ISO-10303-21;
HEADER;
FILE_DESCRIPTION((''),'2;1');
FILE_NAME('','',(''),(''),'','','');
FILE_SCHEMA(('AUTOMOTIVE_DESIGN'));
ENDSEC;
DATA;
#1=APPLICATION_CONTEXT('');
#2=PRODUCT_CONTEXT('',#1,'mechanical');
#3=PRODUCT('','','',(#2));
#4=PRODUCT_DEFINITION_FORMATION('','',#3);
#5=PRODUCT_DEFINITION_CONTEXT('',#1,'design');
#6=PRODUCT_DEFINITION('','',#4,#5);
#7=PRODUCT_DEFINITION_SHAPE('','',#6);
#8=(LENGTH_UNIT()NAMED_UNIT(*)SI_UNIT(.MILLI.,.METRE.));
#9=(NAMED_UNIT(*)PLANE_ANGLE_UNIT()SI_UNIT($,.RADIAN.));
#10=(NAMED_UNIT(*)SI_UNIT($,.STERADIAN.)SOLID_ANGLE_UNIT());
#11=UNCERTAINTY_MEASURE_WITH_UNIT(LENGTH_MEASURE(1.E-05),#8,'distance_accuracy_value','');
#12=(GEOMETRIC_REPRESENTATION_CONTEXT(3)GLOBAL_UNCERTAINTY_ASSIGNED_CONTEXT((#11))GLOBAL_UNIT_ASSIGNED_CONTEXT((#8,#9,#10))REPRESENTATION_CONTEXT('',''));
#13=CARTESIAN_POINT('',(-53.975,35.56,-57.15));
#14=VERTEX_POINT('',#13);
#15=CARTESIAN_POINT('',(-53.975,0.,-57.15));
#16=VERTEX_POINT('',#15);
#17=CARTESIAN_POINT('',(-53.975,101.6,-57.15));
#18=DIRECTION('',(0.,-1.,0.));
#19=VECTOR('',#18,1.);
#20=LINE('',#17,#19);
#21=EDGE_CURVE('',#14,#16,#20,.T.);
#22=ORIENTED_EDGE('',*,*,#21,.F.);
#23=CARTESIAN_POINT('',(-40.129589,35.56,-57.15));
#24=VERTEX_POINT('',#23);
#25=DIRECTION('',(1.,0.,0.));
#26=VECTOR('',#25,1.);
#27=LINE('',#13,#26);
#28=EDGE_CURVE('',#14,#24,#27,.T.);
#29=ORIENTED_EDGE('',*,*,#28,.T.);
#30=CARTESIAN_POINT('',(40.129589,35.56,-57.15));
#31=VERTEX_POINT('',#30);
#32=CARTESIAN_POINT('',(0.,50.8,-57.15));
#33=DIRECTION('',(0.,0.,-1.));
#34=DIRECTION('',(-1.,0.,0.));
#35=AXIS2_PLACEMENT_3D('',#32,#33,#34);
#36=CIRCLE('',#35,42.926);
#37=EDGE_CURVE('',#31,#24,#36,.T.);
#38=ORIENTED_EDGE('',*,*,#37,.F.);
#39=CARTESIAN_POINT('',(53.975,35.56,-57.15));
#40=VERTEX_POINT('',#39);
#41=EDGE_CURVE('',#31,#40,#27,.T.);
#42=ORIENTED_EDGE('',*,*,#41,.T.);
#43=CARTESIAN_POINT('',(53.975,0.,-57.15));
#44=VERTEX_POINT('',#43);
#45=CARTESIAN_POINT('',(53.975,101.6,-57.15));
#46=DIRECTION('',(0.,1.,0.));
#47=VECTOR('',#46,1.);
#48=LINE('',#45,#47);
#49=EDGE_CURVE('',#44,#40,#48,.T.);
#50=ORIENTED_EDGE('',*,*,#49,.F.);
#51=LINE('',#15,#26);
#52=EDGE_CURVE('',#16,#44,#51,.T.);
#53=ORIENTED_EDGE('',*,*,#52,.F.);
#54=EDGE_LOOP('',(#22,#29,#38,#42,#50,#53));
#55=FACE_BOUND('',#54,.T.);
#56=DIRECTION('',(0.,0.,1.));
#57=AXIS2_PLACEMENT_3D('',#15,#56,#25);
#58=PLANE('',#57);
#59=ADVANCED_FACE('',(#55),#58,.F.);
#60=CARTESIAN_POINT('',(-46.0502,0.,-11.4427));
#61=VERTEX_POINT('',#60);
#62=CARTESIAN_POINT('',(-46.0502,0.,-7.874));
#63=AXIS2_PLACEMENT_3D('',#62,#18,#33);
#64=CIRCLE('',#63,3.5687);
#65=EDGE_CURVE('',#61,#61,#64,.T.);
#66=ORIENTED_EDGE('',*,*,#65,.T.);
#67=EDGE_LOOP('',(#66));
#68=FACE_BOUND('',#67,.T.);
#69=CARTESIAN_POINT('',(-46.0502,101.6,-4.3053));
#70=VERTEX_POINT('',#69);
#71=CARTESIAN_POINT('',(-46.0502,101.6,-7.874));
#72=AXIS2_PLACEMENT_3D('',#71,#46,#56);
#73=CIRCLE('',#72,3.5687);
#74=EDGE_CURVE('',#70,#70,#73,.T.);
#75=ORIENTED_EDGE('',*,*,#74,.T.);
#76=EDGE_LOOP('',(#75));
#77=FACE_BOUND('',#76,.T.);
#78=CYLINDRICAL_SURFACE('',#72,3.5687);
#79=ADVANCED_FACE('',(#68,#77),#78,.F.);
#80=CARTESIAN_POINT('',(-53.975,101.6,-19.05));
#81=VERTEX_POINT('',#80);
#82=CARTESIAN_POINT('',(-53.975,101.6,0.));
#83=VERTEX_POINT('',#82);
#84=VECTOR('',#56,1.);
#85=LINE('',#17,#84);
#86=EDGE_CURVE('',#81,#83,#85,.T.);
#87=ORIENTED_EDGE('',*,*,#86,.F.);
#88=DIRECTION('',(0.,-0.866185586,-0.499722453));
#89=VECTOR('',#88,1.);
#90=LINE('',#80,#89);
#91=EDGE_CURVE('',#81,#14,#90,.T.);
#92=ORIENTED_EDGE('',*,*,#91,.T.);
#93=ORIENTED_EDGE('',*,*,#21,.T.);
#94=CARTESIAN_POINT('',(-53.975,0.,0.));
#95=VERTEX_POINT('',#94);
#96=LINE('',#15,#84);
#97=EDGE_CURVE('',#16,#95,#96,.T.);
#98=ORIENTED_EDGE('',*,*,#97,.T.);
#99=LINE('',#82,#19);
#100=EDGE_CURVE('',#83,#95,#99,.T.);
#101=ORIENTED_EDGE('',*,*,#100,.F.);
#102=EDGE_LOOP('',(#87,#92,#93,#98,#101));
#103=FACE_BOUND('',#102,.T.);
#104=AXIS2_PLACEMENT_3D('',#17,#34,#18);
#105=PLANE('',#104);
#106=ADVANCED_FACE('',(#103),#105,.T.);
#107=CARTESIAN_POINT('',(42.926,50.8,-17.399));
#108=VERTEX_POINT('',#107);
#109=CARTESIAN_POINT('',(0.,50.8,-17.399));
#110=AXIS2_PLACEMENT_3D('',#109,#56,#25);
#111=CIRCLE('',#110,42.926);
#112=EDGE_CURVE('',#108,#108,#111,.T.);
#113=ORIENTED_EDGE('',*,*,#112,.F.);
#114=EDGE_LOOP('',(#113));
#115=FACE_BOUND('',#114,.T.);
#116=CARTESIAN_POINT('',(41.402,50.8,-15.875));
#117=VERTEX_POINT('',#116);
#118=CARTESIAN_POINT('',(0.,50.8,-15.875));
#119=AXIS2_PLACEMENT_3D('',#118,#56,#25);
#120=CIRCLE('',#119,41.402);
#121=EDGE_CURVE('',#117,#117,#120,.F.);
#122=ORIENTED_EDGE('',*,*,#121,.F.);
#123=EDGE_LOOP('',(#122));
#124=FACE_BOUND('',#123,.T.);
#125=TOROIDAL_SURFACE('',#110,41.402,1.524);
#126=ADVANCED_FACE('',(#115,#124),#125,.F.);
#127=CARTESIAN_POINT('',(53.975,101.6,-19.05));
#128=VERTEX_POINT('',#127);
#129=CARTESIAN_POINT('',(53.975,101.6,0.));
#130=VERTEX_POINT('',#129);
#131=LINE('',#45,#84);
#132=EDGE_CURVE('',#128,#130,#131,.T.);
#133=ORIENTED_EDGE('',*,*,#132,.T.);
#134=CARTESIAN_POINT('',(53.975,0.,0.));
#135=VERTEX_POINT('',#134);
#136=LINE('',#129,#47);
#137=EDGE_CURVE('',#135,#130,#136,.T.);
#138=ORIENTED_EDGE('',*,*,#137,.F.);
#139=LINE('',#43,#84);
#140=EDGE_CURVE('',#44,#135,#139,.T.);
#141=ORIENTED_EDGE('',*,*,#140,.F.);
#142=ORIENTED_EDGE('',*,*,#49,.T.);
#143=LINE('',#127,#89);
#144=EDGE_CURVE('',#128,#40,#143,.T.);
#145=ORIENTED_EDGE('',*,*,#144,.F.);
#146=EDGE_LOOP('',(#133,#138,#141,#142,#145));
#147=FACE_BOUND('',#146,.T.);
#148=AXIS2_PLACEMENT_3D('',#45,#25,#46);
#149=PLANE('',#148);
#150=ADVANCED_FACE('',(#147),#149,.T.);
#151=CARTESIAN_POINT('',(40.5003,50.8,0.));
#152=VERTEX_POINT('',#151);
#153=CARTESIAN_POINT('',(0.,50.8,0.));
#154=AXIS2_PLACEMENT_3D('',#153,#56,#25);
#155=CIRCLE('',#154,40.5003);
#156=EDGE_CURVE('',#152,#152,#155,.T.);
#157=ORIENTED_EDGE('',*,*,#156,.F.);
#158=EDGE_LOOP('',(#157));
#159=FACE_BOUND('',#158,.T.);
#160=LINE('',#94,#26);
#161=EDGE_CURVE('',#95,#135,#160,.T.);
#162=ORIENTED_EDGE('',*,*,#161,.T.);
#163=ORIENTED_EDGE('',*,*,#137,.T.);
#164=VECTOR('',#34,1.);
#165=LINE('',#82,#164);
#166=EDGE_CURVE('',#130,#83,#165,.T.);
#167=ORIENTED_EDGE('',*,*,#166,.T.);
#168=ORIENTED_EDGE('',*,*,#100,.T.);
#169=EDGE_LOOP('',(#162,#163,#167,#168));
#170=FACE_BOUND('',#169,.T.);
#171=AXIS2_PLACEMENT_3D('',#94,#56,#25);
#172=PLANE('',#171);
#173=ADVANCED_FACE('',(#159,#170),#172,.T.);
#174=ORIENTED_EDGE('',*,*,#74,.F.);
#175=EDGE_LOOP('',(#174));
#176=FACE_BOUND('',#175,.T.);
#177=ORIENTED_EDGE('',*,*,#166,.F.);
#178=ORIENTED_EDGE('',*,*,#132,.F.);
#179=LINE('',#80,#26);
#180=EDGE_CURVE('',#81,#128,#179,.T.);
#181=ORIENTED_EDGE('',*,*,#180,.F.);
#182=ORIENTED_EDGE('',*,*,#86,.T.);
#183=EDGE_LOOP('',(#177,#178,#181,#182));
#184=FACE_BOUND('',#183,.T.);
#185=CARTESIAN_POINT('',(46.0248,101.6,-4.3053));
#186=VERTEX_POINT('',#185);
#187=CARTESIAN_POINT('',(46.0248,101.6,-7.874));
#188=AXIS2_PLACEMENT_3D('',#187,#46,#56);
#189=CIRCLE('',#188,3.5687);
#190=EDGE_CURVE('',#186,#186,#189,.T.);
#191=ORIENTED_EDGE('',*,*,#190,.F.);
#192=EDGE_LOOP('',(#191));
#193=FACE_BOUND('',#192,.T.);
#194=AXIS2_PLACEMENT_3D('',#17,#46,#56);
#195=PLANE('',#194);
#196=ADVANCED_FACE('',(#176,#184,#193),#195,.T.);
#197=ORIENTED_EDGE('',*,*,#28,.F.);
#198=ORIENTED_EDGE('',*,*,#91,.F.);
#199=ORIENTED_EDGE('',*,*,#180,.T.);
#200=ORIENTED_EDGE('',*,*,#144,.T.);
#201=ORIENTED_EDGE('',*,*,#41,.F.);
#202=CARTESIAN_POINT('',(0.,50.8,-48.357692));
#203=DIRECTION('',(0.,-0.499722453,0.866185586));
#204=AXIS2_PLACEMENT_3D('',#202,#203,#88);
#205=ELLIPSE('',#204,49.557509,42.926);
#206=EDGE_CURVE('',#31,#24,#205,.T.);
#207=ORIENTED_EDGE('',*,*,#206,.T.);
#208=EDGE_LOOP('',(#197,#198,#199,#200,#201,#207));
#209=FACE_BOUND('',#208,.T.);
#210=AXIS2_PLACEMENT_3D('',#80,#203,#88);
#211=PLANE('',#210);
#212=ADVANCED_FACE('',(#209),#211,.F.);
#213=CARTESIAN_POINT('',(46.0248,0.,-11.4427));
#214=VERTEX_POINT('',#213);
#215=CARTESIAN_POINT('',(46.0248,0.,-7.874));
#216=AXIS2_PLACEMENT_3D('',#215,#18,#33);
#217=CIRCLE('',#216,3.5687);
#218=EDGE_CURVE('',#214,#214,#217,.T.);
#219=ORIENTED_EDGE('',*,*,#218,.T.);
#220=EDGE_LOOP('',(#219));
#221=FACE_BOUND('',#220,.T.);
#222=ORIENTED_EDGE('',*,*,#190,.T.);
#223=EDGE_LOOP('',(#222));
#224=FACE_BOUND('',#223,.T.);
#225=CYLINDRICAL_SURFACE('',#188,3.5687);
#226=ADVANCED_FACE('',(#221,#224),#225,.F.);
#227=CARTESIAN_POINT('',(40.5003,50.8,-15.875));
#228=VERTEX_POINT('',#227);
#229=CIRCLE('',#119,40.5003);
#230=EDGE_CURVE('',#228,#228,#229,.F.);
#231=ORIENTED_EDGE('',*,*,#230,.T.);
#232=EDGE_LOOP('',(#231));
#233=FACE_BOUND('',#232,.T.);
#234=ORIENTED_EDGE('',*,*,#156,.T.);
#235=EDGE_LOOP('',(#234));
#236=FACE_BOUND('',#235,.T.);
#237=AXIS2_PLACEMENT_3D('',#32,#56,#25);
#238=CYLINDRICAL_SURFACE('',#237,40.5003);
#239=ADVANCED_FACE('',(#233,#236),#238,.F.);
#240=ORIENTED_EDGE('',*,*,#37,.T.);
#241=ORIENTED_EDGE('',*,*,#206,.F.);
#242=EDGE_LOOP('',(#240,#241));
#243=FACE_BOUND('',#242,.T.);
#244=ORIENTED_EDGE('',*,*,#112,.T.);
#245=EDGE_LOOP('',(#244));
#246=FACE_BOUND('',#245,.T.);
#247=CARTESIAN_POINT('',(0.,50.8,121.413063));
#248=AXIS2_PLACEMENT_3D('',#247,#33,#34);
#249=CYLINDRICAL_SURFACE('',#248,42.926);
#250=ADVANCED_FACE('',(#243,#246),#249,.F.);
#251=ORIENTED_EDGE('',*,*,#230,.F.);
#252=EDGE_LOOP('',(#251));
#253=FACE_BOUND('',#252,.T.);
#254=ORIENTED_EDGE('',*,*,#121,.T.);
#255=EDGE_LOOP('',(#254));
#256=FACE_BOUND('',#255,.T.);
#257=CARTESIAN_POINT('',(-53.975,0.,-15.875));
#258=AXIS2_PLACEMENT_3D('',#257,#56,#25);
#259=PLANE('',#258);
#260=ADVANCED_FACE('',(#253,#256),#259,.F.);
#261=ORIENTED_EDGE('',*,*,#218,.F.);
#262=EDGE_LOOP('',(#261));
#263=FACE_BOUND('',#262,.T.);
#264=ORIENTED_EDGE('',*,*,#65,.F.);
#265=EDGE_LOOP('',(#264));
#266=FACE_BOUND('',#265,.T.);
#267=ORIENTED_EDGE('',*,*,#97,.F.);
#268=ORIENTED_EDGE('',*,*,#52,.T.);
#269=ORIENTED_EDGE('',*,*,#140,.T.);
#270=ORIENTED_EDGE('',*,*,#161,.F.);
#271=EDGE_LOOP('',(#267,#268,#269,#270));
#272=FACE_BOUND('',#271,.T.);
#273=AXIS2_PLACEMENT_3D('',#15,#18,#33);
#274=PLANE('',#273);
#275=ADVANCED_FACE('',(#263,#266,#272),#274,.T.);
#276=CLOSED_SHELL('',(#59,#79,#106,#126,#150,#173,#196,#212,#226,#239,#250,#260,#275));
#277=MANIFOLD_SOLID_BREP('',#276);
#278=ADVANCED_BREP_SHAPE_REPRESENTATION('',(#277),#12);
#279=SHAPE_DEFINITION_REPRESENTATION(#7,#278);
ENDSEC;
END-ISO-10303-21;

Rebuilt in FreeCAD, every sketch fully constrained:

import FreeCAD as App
import Part
import Sketcher
Q = App.Units.Quantity


def edges_at(feature, points):
    """Names of the edges that pass closest to the given points."""
    edges = feature.Shape.Edges
    near = lambda p: min(range(len(edges)), key=lambda i: edges[i].distToShape(Part.Vertex(*p))[0])
    return sorted({f"Edge{near(p) + 1}" for p in points})


def add_polygon(sketch, points):
    """Adds a closed chain of lines whose ends are joined by coincident constraints."""
    first, n = sketch.GeometryCount, len(points)
    for a, b in zip(points, points[1:] + points[:1]):
        sketch.addGeometry(Part.LineSegment(App.Vector(*a, 0), App.Vector(*b, 0)), False)
    for i in range(n):
        sketch.addConstraint(Sketcher.Constraint("Coincident", first + i, 2, first + (i + 1) % n, 1))

doc = App.newDocument("Part")
params = doc.addObject("Spreadsheet::Sheet", "Params")
for row, (alias, value) in enumerate([
    ("sketch1_height", "4 in"),
    ("sketch1_diameter", "3.189 in"),
    ("sketch1_width", "4.25 in"),
    ("pad1_length", "2.25 in"),
    ("sketch2_width", "2.6 in"),
    ("sketch2_height", "1.5 in"),
    ("sketch3_diameter", "3.38 in"),
    ("pocket2_length", "1.625 in"),
    ("fillet_radius", "0.06 in"),
    ("sketch4_diameter", "0.281 in"),
    ("hole_diameter", "0.281 in"),
    ("hole_depth", "4 in"),
], start=1):
    params.set(f"A{row}", alias)
    params.set(f"B{row}", "=" + value)
    params.setAlias(f"B{row}", alias)

body = doc.addObject("PartDesign::Body", "Body")

# Sketch on XY plane
sketch1 = doc.addObject("Sketcher::SketchObject", "Sketch")
body.addObject(sketch1)
sketch1.AttachmentSupport = (doc.XY_Plane, [""])
sketch1.MapMode = "FlatFace"
add_polygon(sketch1, [(-54, 102), (-54, 0), (54, 0), (54, 102)])  # lines 0-3
sketch1.addGeometry(Part.Circle(App.Vector(0, 51, 0), App.Vector(0, 0, 1), 41), False)  # 4
sketch1.addConstraint(Sketcher.Constraint("Vertical", 0))
sketch1.addConstraint(Sketcher.Constraint("Horizontal", 1))
sketch1.addConstraint(Sketcher.Constraint("Vertical", 2))
sketch1.addConstraint(Sketcher.Constraint("Horizontal", 3))
sketch1.addConstraint(Sketcher.Constraint("Symmetric", 0, 2, 1, 2, -1, 1))
sketch1.addConstraint(Sketcher.Constraint("PointOnObject", 4, 3, -2))
sketch1.addConstraint(Sketcher.Constraint("DistanceY", 0, 2, 0, 1, Q("4 in")))
sketch1.addConstraint(Sketcher.Constraint("Diameter", 4, Q("3.189 in")))
sketch1.addConstraint(Sketcher.Constraint("DistanceY", -1, 1, 4, 3, Q("2 in")))
sketch1.addConstraint(Sketcher.Constraint("DistanceX", 1, 1, 1, 2, Q("4.25 in")))
sketch1.setExpression("Constraints[10]", "Params.sketch1_height")
sketch1.setExpression("Constraints[11]", "Params.sketch1_diameter")
sketch1.setExpression("Constraints[13]", "Params.sketch1_width")
pad1 = doc.addObject("PartDesign::Pad", "Pad")
body.addObject(pad1)
pad1.Profile = sketch1
pad1.setExpression("Length", "Params.pad1_length")
pad1.Reversed = True

# Sketch on YZ plane
sketch2 = doc.addObject("Sketcher::SketchObject", "Sketch001")
body.addObject(sketch2)
sketch2.AttachmentSupport = (doc.YZ_Plane, [""])
sketch2.MapMode = "FlatFace"
sketch2.AttachmentOffset = App.Placement(App.Vector(0, 0, 2.125 * 25.4), App.Rotation())
add_polygon(sketch2, [(102, -19), (36, -57), (102, -57)])  # lines 0-2
sketch2.addConstraint(Sketcher.Constraint("Horizontal", 1))
sketch2.addConstraint(Sketcher.Constraint("Vertical", 2))
sketch2.addConstraint(Sketcher.Constraint("DistanceX", 1, 1, 1, 2, Q("2.6 in")))
sketch2.addConstraint(Sketcher.Constraint("DistanceY", 2, 1, 2, 2, Q("1.5 in")))
sketch2.addConstraint(Sketcher.Constraint("DistanceX", -1, 1, 1, 2, Q("4 in")))
sketch2.addConstraint(Sketcher.Constraint("DistanceY", 0, 2, -1, 1, Q("2.25 in")))
sketch2.setExpression("Constraints[5]", "Params.sketch2_width")
sketch2.setExpression("Constraints[6]", "Params.sketch2_height")
pocket1 = doc.addObject("PartDesign::Pocket", "Pocket")
body.addObject(pocket1)
pocket1.Profile = sketch2
pocket1.Type = "ThroughAll"

# Sketch on XY plane
sketch3 = doc.addObject("Sketcher::SketchObject", "Sketch002")
body.addObject(sketch3)
sketch3.AttachmentSupport = (doc.XY_Plane, [""])
sketch3.MapMode = "FlatFace"
sketch3.AttachmentOffset = App.Placement(App.Vector(0, 0, -2.25 * 25.4), App.Rotation())
sketch3.addGeometry(Part.Circle(App.Vector(0, 51, 0), App.Vector(0, 0, 1), 43), False)
sketch3.addConstraint(Sketcher.Constraint("PointOnObject", 0, 3, -2))
sketch3.addConstraint(Sketcher.Constraint("Diameter", 0, Q("3.38 in")))
sketch3.addConstraint(Sketcher.Constraint("DistanceY", -1, 1, 0, 3, Q("2 in")))
sketch3.setExpression("Constraints[1]", "Params.sketch3_diameter")
pocket2 = doc.addObject("PartDesign::Pocket", "Pocket001")
body.addObject(pocket2)
pocket2.Profile = sketch3
pocket2.setExpression("Length", "Params.pocket2_length")
pocket2.Reversed = True
doc.recompute()

fillet = doc.addObject("PartDesign::Fillet", "Fillet")
body.addObject(fillet)
fillet.Base = (pocket2, edges_at(pocket2, [(40.13, 66.04, -15.875)]))
fillet.setExpression("Radius", "Params.fillet_radius")

# Sketch on XZ plane
sketch4 = doc.addObject("Sketcher::SketchObject", "Sketch003")
body.addObject(sketch4)
sketch4.AttachmentSupport = (doc.XZ_Plane, [""])
sketch4.MapMode = "FlatFace"
sketch4.AttachmentOffset = App.Placement(App.Vector(0, 0, -4 * 25.4), App.Rotation())
sketch4.addGeometry(Part.Circle(App.Vector(-46.1, -7.9, 0), App.Vector(0, 0, 1), 3.6), False)
sketch4.addGeometry(Part.Circle(App.Vector(46, -7.9, 0), App.Vector(0, 0, 1), 3.6), False)
sketch4.addConstraint(Sketcher.Constraint("Equal", 0, 1))
sketch4.addConstraint(Sketcher.Constraint("Horizontal", 0, 3, 1, 3))
sketch4.addConstraint(Sketcher.Constraint("Diameter", 0, Q("0.281 in")))
sketch4.addConstraint(Sketcher.Constraint("DistanceY", 0, 3, -1, 1, Q("0.31 in")))
sketch4.addConstraint(Sketcher.Constraint("DistanceX", 0, 3, -1, 1, Q("1.813 in")))
sketch4.addConstraint(Sketcher.Constraint("DistanceX", -1, 1, 1, 3, Q("1.812 in")))
sketch4.setExpression("Constraints[2]", "Params.sketch4_diameter")
doc.recompute()
hole = doc.addObject("PartDesign::Hole", "Hole")
body.addObject(hole)
hole.Profile = sketch4
hole.ThreadType = "None"
hole.setExpression("Diameter", "Params.hole_diameter")
hole.DepthType = "Dimension"
hole.setExpression("Depth", "Params.hole_depth")
hole.DrillPoint = "Flat"
hole.Reversed = True

doc.recompute()
